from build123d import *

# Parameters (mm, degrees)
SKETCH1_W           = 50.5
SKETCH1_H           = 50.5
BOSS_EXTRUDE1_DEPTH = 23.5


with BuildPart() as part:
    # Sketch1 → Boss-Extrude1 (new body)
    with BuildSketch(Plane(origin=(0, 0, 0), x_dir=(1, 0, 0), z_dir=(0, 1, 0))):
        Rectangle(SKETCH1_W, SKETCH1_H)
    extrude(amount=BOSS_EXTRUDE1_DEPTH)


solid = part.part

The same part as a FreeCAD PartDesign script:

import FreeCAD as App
import Part
import Sketcher
from FreeCAD import Vector


def add_polygon(sketch, points):
    """Adds a closed chain of lines whose ends are joined by coincident constraints."""
    first, n = sketch.GeometryCount, len(points)
    for a, b in zip(points, points[1:] + points[:1]):
        sketch.addGeometry(Part.LineSegment(App.Vector(*a, 0), App.Vector(*b, 0)), False)
    for i in range(n):
        sketch.addConstraint(Sketcher.Constraint("Coincident", first + i, 2, first + (i + 1) % n, 1))

doc = App.newDocument("Part")
body = doc.addObject("PartDesign::Body", "Body")

sketch1 = body.newObject("Sketcher::SketchObject", "Sketch")
sketch1.AttachmentSupport = (doc.getObject("XZ_Plane"), [""])
sketch1.MapMode = "FlatFace"
add_polygon(sketch1, [(-25, -25), (-25, 25), (25, 25), (25, -25)])
sketch1.addConstraint(Sketcher.Constraint("Vertical", 0))
sketch1.addConstraint(Sketcher.Constraint("Horizontal", 1))
sketch1.addConstraint(Sketcher.Constraint("Vertical", 2))
sketch1.addConstraint(Sketcher.Constraint("Horizontal", 3))
sketch1.addConstraint(Sketcher.Constraint("Symmetric", 0, 2, 2, 2, -1, 1))
sketch1.addConstraint(Sketcher.Constraint("Equal", 3, 0))
sketch1.addConstraint(Sketcher.Constraint("DistanceX", 1, 1, 1, 2, 50.5))
pad1 = body.newObject("PartDesign::Pad", "Pad")
pad1.Profile = sketch1
pad1.Length = 23.5
pad1.Reversed = True

doc.recompute()
